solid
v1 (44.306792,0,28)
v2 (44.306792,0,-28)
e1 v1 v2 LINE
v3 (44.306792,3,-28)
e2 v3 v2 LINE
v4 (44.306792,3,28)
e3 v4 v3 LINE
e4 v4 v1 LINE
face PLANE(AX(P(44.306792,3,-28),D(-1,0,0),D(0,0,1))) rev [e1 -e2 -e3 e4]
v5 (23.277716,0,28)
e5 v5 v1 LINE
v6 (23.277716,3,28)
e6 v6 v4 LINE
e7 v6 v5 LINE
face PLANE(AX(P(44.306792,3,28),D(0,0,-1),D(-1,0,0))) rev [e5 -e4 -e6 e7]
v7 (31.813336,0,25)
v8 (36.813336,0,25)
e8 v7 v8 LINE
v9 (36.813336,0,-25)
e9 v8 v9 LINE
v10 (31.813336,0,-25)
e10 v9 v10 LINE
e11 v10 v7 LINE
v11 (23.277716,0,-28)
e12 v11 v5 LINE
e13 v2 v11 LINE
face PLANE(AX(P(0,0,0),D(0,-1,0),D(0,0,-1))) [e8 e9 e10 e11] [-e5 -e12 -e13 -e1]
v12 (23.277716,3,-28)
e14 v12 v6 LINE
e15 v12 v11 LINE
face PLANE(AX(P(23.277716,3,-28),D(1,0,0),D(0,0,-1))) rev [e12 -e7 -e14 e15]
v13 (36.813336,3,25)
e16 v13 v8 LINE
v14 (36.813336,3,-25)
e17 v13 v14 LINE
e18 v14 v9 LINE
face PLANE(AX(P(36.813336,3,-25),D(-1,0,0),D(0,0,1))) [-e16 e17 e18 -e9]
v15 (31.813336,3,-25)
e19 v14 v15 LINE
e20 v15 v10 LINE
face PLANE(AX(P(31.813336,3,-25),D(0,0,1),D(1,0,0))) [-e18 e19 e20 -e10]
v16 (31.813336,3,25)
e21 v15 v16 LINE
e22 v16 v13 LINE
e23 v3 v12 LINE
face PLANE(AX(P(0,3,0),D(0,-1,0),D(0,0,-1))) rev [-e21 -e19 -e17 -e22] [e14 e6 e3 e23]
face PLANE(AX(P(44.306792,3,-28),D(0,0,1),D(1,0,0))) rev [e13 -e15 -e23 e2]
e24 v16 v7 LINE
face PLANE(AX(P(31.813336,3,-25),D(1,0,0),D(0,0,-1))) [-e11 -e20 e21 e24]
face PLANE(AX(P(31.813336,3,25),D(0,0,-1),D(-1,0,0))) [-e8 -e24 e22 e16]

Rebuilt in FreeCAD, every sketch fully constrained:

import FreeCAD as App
import Part
import Sketcher
from FreeCAD import Vector
Q = App.Units.Quantity


def add_polygon(sketch, points):
    """Adds a closed chain of lines whose ends are joined by coincident constraints."""
    first, n = sketch.GeometryCount, len(points)
    for a, b in zip(points, points[1:] + points[:1]):
        sketch.addGeometry(Part.LineSegment(App.Vector(*a, 0), App.Vector(*b, 0)), False)
    for i in range(n):
        sketch.addConstraint(Sketcher.Constraint("Coincident", first + i, 2, first + (i + 1) % n, 1))

doc = App.newDocument("Part")
params = doc.addObject("Spreadsheet::Sheet", "Params")
for row, (alias, value) in enumerate([
    ("sketch1_width", "5 mm"),
    ("sketch1_height", "56 mm"),
    ("sketch1_height2", "50 mm"),
    ("pad1_length", "3 mm"),
], start=1):
    params.set(f"A{row}", alias)
    params.set(f"B{row}", "=" + value)
    params.setAlias(f"B{row}", alias)

body = doc.addObject("PartDesign::Body", "Body")

# Sketch on XZ plane
sketch1 = doc.addObject("Sketcher::SketchObject", "Sketch")
body.addObject(sketch1)
sketch1.AttachmentSupport = (doc.XZ_Plane, [""])
sketch1.MapMode = "FlatFace"
add_polygon(sketch1, [(23.277716, -28), (23.277716, 28), (44.306792, 28), (44.306792, -28)])  # lines 0-3
add_polygon(sketch1, [(36.813336, 25), (31.813336, 25), (31.813336, -25), (36.813336, -25)])  # lines 4-7
sketch1.addConstraint(Sketcher.Constraint("Vertical", 0))
sketch1.addConstraint(Sketcher.Constraint("Horizontal", 1))
sketch1.addConstraint(Sketcher.Constraint("Vertical", 2))
sketch1.addConstraint(Sketcher.Constraint("Horizontal", 3))
sketch1.addConstraint(Sketcher.Constraint("Horizontal", 4))
sketch1.addConstraint(Sketcher.Constraint("Vertical", 5))
sketch1.addConstraint(Sketcher.Constraint("Horizontal", 6))
sketch1.addConstraint(Sketcher.Constraint("Vertical", 7))
sketch1.addConstraint(Sketcher.Constraint("DistanceX", 4, 2, 4, 1, Q("5 mm")))
sketch1.addConstraint(Sketcher.Constraint("DistanceY", 0, 1, 0, 2, Q("56 mm")))
sketch1.addConstraint(Sketcher.Constraint("DistanceY", 5, 2, 5, 1, Q("50 mm")))
sketch1.addConstraint(Sketcher.Constraint("DistanceY", -1, 1, 0, 2, Q("28 mm")))
sketch1.addConstraint(Sketcher.Constraint("DistanceY", -1, 1, 4, 2, Q("25 mm")))
sketch1.addConstraint(Sketcher.Constraint("DistanceX", 1, 1, 1, 2, Q("21.029076 mm")))
sketch1.addConstraint(Sketcher.Constraint("DistanceX", 0, 2, 4, 2, Q("8.535619 mm")))
sketch1.addConstraint(Sketcher.Constraint("DistanceX", -1, 1, 0, 2, Q("23.277716 mm")))
sketch1.setExpression("Constraints[16]", "Params.sketch1_width")
sketch1.setExpression("Constraints[17]", "Params.sketch1_height")
sketch1.setExpression("Constraints[18]", "Params.sketch1_height2")
pad1 = doc.addObject("PartDesign::Pad", "Pad")
body.addObject(pad1)
pad1.Profile = sketch1
pad1.setExpression("Length", "Params.pad1_length")
pad1.Reversed = True

doc.recompute()
